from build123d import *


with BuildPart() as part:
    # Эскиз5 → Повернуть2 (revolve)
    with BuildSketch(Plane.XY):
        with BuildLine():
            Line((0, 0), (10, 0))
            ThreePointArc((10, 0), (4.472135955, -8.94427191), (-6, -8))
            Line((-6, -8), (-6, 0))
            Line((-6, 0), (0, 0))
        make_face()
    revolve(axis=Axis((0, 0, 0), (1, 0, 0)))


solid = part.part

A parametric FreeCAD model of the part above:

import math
import FreeCAD as App
import Part
import Sketcher

V = App.Vector

doc = App.newDocument("Part")
body = doc.addObject("PartDesign::Body", "Body")

# Sketch on XY plane
sketch1 = doc.addObject("Sketcher::SketchObject", "Sketch")
body.addObject(sketch1)
sketch1.AttachmentSupport = (doc.XY_Plane, [""])
sketch1.MapMode = "FlatFace"
sketch1.addGeometry(Part.ArcOfCircle(Part.Circle(V(0, 0, 0), V(0, 0, 1), 10), math.radians(-127), math.radians(0)), False)
sketch1.addGeometry(Part.LineSegment(V(10, 0, 0), V(-6, 0, 0)), False)
sketch1.addGeometry(Part.LineSegment(V(-6, 0, 0), V(-6, -8, 0)), False)
sketch1.addConstraint(Sketcher.Constraint("Coincident", 0, 2, 1, 1))
sketch1.addConstraint(Sketcher.Constraint("Coincident", 1, 2, 2, 1))
sketch1.addConstraint(Sketcher.Constraint("Coincident", 2, 2, 0, 1))
sketch1.addConstraint(Sketcher.Constraint("Horizontal", 1))
sketch1.addConstraint(Sketcher.Constraint("Vertical", 2))
sketch1.addConstraint(Sketcher.Constraint("Coincident", 0, 3, -1, 1))
sketch1.addConstraint(Sketcher.Constraint("PointOnObject", 0, 2, -1))
sketch1.addConstraint(Sketcher.Constraint("Radius", 0, 10.0))
sketch1.addConstraint(Sketcher.Constraint("DistanceX", 1, 2, 1, 1, 16.0))
revolution = doc.addObject("PartDesign::Revolution", "Revolution")
body.addObject(revolution)
revolution.Profile = sketch1
revolution.ReferenceAxis = (sketch1, ["H_Axis"])
revolution.Angle = 360

doc.recompute()
